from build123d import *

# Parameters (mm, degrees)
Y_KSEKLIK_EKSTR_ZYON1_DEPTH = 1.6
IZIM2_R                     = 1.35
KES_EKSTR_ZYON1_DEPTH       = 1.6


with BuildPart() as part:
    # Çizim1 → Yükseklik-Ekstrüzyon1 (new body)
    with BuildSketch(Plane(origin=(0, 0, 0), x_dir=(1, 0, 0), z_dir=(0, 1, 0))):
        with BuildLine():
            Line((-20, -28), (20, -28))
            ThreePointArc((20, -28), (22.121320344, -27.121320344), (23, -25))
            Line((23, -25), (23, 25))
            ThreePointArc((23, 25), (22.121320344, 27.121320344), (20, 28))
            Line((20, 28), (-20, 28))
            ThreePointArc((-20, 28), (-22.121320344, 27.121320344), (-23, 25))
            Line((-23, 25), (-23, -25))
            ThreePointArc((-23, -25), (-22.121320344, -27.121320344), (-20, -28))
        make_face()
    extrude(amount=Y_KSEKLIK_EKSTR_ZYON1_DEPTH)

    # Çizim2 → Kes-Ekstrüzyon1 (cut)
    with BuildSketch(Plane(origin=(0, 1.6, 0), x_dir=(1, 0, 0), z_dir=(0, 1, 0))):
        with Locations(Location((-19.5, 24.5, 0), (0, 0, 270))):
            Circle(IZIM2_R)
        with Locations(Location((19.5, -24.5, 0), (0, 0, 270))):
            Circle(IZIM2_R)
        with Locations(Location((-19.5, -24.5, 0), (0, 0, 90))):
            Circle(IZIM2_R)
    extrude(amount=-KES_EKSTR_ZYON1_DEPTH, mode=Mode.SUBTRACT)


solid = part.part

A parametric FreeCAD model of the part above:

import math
import FreeCAD as App
import Part
import Sketcher
from FreeCAD import Vector

doc = App.newDocument("Part")
body = doc.addObject("PartDesign::Body", "Body")

# Sketch on XZ plane
sketch1 = body.newObject("Sketcher::SketchObject", "Sketch")
sketch1.AttachmentSupport = (doc.getObject("XZ_Plane"), [""])
sketch1.MapMode = "FlatFace"
sketch1.addGeometry([
    Part.LineSegment(Vector(-20, 28, 0), Vector(20, 28, 0)),  # 0
    Part.ArcOfCircle(Part.Circle(Vector(20, 25, 0), Vector(0, 0, 1), 3), math.radians(0), math.radians(90)),  # 1
    Part.LineSegment(Vector(23, 25, 0), Vector(23, -25, 0)),  # 2
    Part.ArcOfCircle(Part.Circle(Vector(20, -25, 0), Vector(0, 0, 1), 3), math.radians(-90), math.radians(0)),  # 3
    Part.LineSegment(Vector(20, -28, 0), Vector(-20, -28, 0)),  # 4
    Part.ArcOfCircle(Part.Circle(Vector(-20, -25, 0), Vector(0, 0, 1), 3), math.radians(180), math.radians(270)),  # 5
    Part.LineSegment(Vector(-23, -25, 0), Vector(-23, 25, 0)),  # 6
    Part.ArcOfCircle(Part.Circle(Vector(-20, 25, 0), Vector(0, 0, 1), 3), math.radians(90), math.radians(180)),  # 7
], False)
sketch1.addConstraint([
    Sketcher.Constraint("Tangent", 0, 2, 1, 2),
    Sketcher.Constraint("Tangent", 1, 1, 2, 1),
    Sketcher.Constraint("Tangent", 2, 2, 3, 2),
    Sketcher.Constraint("Tangent", 3, 1, 4, 1),
    Sketcher.Constraint("Tangent", 4, 2, 5, 2),
    Sketcher.Constraint("Tangent", 5, 1, 6, 1),
    Sketcher.Constraint("Tangent", 6, 2, 7, 2),
    Sketcher.Constraint("Tangent", 7, 1, 0, 1),
    Sketcher.Constraint("Horizontal", 0),
    Sketcher.Constraint("Vertical", 2),
    Sketcher.Constraint("Horizontal", 4),
    Sketcher.Constraint("Vertical", 6),
    Sketcher.Constraint("Equal", 1, 3),
    Sketcher.Constraint("Equal", 3, 5),
    Sketcher.Constraint("Equal", 5, 7),
    Sketcher.Constraint("Symmetric", 1, 3, 5, 3, -1, 1),
    Sketcher.Constraint("Radius", 1, 3.0),
    Sketcher.Constraint("DistanceX", 0, 1, 0, 2, 40.0),
    Sketcher.Constraint("DistanceY", 2, 2, 2, 1, 50.0),
])
pad1 = body.newObject("PartDesign::Pad", "Pad")
pad1.Profile = sketch1
pad1.Length = 1.6
pad1.Reversed = True

# Sketch on XZ plane
sketch2 = body.newObject("Sketcher::SketchObject", "Sketch001")
sketch2.AttachmentSupport = (doc.getObject("XZ_Plane"), [""])
sketch2.MapMode = "FlatFace"
sketch2.AttachmentOffset = App.Placement(Vector(0, 0, -1.6), App.Rotation())
sketch2.addGeometry([
    Part.Circle(Vector(-19.5, -24.5, 0), Vector(0, 0, 1), 1.4),
    Part.Circle(Vector(19.5, 24.5, 0), Vector(0, 0, 1), 1.4),
    Part.Circle(Vector(-19.5, 24.5, 0), Vector(0, 0, 1), 1.4),
], False)
sketch2.addConstraint([
    Sketcher.Constraint("Equal", 0, 1),
    Sketcher.Constraint("Equal", 1, 2),
    Sketcher.Constraint("Symmetric", 0, 3, 1, 3, -1, 1),
    Sketcher.Constraint("Symmetric", 1, 3, 2, 3, -2),
    Sketcher.Constraint("Diameter", 0, 2.7),
    Sketcher.Constraint("DistanceX", 0, 3, 1, 3, 39.0),
    Sketcher.Constraint("DistanceY", 0, 3, 1, 3, 49.0),
])
pocket1 = body.newObject("PartDesign::Pocket", "Pocket")
pocket1.Profile = sketch2
pocket1.Length = 1.6
pocket1.Reversed = True

doc.recompute()
